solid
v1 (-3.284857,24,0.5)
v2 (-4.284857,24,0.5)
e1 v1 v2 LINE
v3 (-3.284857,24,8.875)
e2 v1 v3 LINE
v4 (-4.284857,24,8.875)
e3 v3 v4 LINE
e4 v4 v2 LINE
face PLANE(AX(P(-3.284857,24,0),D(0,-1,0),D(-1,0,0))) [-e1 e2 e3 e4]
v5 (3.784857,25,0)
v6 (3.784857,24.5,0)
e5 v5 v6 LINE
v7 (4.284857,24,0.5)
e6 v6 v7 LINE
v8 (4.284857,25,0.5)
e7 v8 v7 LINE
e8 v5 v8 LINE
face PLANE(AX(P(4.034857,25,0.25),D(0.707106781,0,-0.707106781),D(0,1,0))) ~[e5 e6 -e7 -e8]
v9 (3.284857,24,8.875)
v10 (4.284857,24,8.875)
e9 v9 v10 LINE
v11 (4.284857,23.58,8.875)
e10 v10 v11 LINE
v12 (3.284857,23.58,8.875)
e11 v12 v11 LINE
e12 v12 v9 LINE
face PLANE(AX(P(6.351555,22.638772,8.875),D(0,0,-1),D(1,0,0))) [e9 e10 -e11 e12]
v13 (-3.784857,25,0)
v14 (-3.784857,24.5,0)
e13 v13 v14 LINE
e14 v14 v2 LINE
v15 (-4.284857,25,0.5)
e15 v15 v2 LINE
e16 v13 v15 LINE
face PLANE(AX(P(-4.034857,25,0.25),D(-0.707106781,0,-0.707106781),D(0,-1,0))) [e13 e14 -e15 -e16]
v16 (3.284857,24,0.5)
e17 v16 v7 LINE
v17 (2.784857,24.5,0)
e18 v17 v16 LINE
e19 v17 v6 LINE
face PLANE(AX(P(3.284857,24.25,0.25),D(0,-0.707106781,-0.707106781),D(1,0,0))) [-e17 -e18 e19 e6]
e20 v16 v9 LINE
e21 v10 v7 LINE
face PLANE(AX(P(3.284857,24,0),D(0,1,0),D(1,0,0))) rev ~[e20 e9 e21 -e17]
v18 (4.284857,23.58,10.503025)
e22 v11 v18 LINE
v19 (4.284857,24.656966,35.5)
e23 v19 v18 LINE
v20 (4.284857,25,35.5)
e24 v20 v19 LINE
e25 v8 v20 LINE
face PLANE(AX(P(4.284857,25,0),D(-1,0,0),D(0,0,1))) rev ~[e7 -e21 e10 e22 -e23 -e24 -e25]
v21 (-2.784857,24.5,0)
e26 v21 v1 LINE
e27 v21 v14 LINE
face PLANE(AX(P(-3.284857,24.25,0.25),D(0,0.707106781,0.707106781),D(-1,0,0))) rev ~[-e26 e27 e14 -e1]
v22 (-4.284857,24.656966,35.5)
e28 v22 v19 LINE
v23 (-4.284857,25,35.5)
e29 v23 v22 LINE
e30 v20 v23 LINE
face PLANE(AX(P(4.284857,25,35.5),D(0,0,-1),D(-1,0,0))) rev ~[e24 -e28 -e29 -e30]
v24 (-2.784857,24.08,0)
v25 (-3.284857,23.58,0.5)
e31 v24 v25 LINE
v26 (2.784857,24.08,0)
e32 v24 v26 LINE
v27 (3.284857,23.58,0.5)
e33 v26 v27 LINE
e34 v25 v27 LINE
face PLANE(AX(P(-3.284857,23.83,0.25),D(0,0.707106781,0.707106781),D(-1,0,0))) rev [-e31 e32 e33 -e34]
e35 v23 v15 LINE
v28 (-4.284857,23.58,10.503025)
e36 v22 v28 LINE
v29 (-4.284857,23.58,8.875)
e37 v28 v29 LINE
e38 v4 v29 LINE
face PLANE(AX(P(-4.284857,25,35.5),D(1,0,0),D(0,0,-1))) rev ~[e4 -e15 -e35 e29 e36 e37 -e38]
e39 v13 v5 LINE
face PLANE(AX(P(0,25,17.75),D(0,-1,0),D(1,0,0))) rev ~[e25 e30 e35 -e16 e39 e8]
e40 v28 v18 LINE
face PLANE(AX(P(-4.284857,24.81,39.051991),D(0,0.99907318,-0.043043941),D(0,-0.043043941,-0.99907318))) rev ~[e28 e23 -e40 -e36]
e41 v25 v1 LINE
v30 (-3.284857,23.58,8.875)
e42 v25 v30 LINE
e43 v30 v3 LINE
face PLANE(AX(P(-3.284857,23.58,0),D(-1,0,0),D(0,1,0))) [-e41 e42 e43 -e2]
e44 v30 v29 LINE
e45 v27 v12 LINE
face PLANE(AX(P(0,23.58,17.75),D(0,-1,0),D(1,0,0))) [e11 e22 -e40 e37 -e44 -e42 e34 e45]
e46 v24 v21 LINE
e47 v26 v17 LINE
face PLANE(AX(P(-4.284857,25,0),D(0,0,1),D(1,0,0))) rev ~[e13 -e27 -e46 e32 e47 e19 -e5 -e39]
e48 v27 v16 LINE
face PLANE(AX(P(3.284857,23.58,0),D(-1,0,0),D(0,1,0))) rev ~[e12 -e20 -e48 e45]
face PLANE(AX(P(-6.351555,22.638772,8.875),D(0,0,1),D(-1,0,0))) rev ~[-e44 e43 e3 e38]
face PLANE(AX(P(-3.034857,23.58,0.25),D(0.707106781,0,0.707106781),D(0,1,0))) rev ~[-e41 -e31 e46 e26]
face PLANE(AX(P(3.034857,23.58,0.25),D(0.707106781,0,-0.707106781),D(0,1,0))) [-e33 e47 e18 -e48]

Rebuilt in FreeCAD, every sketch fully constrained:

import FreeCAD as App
import Part
import Sketcher
Q = App.Units.Quantity


def edges_at(feature, points):
    """Names of the edges that pass closest to the given points."""
    edges = feature.Shape.Edges
    near = lambda p: min(range(len(edges)), key=lambda i: edges[i].distToShape(Part.Vertex(*p))[0])
    return sorted({f"Edge{near(p) + 1}" for p in points})


def add_polygon(sketch, points):
    """Adds a closed chain of lines whose ends are joined by coincident constraints."""
    first, n = sketch.GeometryCount, len(points)
    for a, b in zip(points, points[1:] + points[:1]):
        sketch.addGeometry(Part.LineSegment(App.Vector(*a, 0), App.Vector(*b, 0)), False)
    for i in range(n):
        sketch.addConstraint(Sketcher.Constraint("Coincident", first + i, 2, first + (i + 1) % n, 1))

doc = App.newDocument("Part")
body = doc.addObject("PartDesign::Body", "Body")

# Sketch on XZ plane
sketch1 = body.newObject("Sketcher::SketchObject", "Sketch")
sketch1.AttachmentSupport = (doc.getObject("XZ_Plane"), [""])
sketch1.MapMode = "FlatFace"
add_polygon(sketch1, [(-4, 0), (4, 0), (4, 36), (-4, 36)])  # lines 0-3
sketch1.addConstraint([
    Sketcher.Constraint("Horizontal", 0),
    Sketcher.Constraint("Vertical", 1),
    Sketcher.Constraint("Horizontal", 2),
    Sketcher.Constraint("Vertical", 3),
    Sketcher.Constraint("Symmetric", 0, 2, 3, 2, -1, 1),
    Sketcher.Constraint("DistanceY", 1, 1, 1, 2, Q("35.5 mm")),
    Sketcher.Constraint("DistanceX", 0, 1, 0, 2, Q("8.569714 mm")),
])
pad1 = body.newObject("PartDesign::Pad", "Pad")
pad1.Profile = sketch1
pad1.Length = 1.42

# Sketch on XY plane
sketch2 = body.newObject("Sketcher::SketchObject", "Sketch001")
sketch2.AttachmentSupport = (doc.getObject("XY_Plane"), [""])
sketch2.MapMode = "FlatFace"
add_polygon(sketch2, [(-3.28, -1), (-3.28, -1.42), (-8.28, -4.92), (-8.28, -1)])  # lines 0-3
add_polygon(sketch2, [(8.28, -4.92), (3.28, -1.42), (3.28, -1), (8.28, -1)])  # lines 4-7
sketch2.addConstraint([
    Sketcher.Constraint("Vertical", 0),
    Sketcher.Constraint("Vertical", 2),
    Sketcher.Constraint("Horizontal", 3),
    Sketcher.Constraint("Vertical", 5),
    Sketcher.Constraint("Horizontal", 6),
    Sketcher.Constraint("Vertical", 7),
    Sketcher.Constraint("Symmetric", 0, 2, 4, 2, -2),
    Sketcher.Constraint("Symmetric", 2, 2, 6, 2, -2),
    Sketcher.Constraint("Horizontal", 1, 2, 7, 2),
    Sketcher.Constraint("DistanceX", 3, 1, 3, 2, Q("5 mm")),
    Sketcher.Constraint("Angle", 1, Q("-144.999998 deg")),
    Sketcher.Constraint("DistanceY", 2, 2, -1, 1, Q("1 mm")),
    Sketcher.Constraint("DistanceY", 0, 2, 0, 1, Q("0.42 mm")),
    Sketcher.Constraint("DistanceX", 0, 2, -1, 1, Q("3.284857 mm")),
])
pocket1 = body.newObject("PartDesign::Pocket", "Pocket")
pocket1.Profile = sketch2
pocket1.Length = 8.875
pocket1.Reversed = True

# Sketch on YZ plane
sketch3 = body.newObject("Sketcher::SketchObject", "Sketch002")
sketch3.AttachmentSupport = (doc.getObject("YZ_Plane"), [""])
sketch3.MapMode = "FlatFace"
sketch3.AttachmentOffset = App.Placement(App.Vector(0, 0, -4.284857), App.Rotation())
add_polygon(sketch3, [(0, 39), (-1, 10), (-14, 39)])  # lines 0-2
sketch3.addConstraint([
    Sketcher.Constraint("Horizontal", 2),
    Sketcher.Constraint("DistanceX", 2, 1, 2, 2, Q("13.83 mm")),
    Sketcher.Constraint("DistanceX", 0, 2, -1, 1, Q("1.44 mm")),
    Sketcher.Constraint("DistanceX", 1, 2, -1, 1, Q("14.02 mm")),
    Sketcher.Constraint("Distance", 0, Q("29.040092 mm")),
    Sketcher.Constraint("DistanceY", -1, 1, 1, 2, Q("39.051991 mm")),
])
pocket2 = body.newObject("PartDesign::Pocket", "Pocket001")
pocket2.Profile = sketch3
pocket2.Type = "ThroughAll"
pocket2.Reversed = True
doc.recompute()

chamfer = body.newObject("PartDesign::Chamfer", "Chamfer")
chamfer.Base = (pocket2, edges_at(pocket2, [
    (-3.785, -1, 0),
    (-3.285, -1.21, 0),
    (0, -1.42, 0),
    (3.285, -1.21, 0),
    (3.785, -1, 0),
    (-4.285, -0.5, 0),
    (4.285, -0.5, 0),
]))
chamfer.Size = 0.5
body2 = doc.addObject("PartDesign::Body", "Body001")
doc.recompute()

body.Placement = App.Placement(App.Vector(0, 25, 0), App.Rotation(App.Vector(0, 0, 1), 0))
boolean = body2.newObject("PartDesign::Boolean", "Boolean")
boolean.Type = "Fuse"
boolean.addObjects([body])

doc.recompute()
